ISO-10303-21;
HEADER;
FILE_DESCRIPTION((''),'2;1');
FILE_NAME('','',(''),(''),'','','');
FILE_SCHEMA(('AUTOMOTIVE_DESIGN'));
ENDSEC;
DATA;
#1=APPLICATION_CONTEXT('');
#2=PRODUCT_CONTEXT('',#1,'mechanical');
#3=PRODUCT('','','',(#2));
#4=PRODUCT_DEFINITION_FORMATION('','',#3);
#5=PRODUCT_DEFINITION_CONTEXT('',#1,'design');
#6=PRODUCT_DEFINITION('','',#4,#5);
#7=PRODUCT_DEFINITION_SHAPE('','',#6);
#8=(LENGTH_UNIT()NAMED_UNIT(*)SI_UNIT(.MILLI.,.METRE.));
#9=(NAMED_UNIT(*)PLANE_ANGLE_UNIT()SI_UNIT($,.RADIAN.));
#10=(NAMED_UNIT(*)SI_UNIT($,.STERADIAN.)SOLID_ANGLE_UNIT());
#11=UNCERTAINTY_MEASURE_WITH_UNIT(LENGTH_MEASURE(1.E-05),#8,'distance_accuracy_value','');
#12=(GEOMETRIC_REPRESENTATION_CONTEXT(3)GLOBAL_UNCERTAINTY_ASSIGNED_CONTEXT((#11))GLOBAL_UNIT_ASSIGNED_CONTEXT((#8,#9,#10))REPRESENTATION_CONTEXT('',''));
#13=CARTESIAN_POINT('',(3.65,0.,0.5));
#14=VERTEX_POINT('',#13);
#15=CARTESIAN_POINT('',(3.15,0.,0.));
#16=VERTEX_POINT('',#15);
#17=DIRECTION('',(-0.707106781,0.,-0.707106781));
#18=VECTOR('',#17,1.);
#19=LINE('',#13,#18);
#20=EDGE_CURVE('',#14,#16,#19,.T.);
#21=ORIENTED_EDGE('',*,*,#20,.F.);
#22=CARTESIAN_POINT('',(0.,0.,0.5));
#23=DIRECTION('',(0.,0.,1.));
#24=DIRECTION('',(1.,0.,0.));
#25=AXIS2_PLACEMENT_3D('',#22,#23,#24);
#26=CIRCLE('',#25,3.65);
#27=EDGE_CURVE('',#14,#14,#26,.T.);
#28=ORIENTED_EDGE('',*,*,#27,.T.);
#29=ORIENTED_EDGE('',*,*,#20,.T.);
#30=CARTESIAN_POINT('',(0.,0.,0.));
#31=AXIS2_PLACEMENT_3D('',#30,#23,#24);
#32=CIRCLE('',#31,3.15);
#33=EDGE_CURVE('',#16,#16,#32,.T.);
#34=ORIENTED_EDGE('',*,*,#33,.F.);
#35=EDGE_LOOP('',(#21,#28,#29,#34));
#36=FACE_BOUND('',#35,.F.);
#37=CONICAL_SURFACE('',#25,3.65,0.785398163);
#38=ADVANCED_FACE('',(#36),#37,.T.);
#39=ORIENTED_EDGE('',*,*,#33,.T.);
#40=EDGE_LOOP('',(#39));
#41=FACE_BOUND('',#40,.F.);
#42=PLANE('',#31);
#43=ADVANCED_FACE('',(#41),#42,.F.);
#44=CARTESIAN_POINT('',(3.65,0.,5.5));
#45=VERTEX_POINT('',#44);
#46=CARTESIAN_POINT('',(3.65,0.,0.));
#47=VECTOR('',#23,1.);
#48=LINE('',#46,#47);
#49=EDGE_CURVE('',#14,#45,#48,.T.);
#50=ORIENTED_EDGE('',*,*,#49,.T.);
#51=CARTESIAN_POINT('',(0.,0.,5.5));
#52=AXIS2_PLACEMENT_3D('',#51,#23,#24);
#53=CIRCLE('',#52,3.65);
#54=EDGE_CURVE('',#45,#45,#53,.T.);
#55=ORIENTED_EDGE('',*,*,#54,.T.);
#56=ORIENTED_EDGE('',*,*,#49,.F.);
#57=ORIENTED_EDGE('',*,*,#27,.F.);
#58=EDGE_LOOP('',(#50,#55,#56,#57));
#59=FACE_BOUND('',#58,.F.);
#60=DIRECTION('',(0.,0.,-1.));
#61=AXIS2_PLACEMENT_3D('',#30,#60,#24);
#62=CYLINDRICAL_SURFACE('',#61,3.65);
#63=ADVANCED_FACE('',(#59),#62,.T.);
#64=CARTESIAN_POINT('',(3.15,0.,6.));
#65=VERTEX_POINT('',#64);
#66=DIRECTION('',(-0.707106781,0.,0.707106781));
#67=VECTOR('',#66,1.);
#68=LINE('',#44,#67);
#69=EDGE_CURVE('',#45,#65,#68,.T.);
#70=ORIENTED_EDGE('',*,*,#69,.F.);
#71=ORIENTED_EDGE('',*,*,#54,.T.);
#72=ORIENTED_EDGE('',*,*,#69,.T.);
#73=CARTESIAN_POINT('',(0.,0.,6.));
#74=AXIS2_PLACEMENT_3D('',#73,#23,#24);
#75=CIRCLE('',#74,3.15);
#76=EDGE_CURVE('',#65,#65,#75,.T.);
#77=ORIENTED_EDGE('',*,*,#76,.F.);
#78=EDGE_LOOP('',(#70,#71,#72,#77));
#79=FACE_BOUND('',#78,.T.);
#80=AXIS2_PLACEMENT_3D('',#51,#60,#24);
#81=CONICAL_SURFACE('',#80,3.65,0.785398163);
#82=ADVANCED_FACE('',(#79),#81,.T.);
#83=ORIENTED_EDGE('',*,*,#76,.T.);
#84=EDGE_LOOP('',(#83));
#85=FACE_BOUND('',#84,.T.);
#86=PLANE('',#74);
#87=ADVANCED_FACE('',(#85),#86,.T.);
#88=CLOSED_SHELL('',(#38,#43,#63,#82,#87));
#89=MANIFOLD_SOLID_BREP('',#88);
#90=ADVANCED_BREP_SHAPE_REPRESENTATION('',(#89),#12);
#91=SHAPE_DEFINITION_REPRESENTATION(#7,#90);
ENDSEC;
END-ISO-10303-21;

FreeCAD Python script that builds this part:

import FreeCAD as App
import Part
import Sketcher


def edges_at(feature, points):
    """Names of the edges that pass closest to the given points."""
    edges = feature.Shape.Edges
    near = lambda p: min(range(len(edges)), key=lambda i: edges[i].distToShape(Part.Vertex(*p))[0])
    return sorted({f"Edge{near(p) + 1}" for p in points})

doc = App.newDocument("Part")
body = doc.addObject("PartDesign::Body", "Body")

sketch1 = doc.addObject("Sketcher::SketchObject", "Sketch")
body.addObject(sketch1)
sketch1.AttachmentSupport = (doc.XY_Plane, [""])
sketch1.MapMode = "FlatFace"
sketch1.addGeometry(Part.Circle(App.Vector(0, 0, 0), App.Vector(0, 0, 1), 3.6), False)
sketch1.addConstraint(Sketcher.Constraint("Coincident", 0, 3, -1, 1))
sketch1.addConstraint(Sketcher.Constraint("Diameter", 0, 7.3))
pad1 = doc.addObject("PartDesign::Pad", "Pad")
body.addObject(pad1)
pad1.Profile = sketch1
pad1.Length = 6
doc.recompute()

chamfer = doc.addObject("PartDesign::Chamfer", "Chamfer")
body.addObject(chamfer)
chamfer.Base = (pad1, edges_at(pad1, [(-3.65, 0, 6), (-3.65, 0, 0)]))
chamfer.Size = 0.5

doc.recompute()
